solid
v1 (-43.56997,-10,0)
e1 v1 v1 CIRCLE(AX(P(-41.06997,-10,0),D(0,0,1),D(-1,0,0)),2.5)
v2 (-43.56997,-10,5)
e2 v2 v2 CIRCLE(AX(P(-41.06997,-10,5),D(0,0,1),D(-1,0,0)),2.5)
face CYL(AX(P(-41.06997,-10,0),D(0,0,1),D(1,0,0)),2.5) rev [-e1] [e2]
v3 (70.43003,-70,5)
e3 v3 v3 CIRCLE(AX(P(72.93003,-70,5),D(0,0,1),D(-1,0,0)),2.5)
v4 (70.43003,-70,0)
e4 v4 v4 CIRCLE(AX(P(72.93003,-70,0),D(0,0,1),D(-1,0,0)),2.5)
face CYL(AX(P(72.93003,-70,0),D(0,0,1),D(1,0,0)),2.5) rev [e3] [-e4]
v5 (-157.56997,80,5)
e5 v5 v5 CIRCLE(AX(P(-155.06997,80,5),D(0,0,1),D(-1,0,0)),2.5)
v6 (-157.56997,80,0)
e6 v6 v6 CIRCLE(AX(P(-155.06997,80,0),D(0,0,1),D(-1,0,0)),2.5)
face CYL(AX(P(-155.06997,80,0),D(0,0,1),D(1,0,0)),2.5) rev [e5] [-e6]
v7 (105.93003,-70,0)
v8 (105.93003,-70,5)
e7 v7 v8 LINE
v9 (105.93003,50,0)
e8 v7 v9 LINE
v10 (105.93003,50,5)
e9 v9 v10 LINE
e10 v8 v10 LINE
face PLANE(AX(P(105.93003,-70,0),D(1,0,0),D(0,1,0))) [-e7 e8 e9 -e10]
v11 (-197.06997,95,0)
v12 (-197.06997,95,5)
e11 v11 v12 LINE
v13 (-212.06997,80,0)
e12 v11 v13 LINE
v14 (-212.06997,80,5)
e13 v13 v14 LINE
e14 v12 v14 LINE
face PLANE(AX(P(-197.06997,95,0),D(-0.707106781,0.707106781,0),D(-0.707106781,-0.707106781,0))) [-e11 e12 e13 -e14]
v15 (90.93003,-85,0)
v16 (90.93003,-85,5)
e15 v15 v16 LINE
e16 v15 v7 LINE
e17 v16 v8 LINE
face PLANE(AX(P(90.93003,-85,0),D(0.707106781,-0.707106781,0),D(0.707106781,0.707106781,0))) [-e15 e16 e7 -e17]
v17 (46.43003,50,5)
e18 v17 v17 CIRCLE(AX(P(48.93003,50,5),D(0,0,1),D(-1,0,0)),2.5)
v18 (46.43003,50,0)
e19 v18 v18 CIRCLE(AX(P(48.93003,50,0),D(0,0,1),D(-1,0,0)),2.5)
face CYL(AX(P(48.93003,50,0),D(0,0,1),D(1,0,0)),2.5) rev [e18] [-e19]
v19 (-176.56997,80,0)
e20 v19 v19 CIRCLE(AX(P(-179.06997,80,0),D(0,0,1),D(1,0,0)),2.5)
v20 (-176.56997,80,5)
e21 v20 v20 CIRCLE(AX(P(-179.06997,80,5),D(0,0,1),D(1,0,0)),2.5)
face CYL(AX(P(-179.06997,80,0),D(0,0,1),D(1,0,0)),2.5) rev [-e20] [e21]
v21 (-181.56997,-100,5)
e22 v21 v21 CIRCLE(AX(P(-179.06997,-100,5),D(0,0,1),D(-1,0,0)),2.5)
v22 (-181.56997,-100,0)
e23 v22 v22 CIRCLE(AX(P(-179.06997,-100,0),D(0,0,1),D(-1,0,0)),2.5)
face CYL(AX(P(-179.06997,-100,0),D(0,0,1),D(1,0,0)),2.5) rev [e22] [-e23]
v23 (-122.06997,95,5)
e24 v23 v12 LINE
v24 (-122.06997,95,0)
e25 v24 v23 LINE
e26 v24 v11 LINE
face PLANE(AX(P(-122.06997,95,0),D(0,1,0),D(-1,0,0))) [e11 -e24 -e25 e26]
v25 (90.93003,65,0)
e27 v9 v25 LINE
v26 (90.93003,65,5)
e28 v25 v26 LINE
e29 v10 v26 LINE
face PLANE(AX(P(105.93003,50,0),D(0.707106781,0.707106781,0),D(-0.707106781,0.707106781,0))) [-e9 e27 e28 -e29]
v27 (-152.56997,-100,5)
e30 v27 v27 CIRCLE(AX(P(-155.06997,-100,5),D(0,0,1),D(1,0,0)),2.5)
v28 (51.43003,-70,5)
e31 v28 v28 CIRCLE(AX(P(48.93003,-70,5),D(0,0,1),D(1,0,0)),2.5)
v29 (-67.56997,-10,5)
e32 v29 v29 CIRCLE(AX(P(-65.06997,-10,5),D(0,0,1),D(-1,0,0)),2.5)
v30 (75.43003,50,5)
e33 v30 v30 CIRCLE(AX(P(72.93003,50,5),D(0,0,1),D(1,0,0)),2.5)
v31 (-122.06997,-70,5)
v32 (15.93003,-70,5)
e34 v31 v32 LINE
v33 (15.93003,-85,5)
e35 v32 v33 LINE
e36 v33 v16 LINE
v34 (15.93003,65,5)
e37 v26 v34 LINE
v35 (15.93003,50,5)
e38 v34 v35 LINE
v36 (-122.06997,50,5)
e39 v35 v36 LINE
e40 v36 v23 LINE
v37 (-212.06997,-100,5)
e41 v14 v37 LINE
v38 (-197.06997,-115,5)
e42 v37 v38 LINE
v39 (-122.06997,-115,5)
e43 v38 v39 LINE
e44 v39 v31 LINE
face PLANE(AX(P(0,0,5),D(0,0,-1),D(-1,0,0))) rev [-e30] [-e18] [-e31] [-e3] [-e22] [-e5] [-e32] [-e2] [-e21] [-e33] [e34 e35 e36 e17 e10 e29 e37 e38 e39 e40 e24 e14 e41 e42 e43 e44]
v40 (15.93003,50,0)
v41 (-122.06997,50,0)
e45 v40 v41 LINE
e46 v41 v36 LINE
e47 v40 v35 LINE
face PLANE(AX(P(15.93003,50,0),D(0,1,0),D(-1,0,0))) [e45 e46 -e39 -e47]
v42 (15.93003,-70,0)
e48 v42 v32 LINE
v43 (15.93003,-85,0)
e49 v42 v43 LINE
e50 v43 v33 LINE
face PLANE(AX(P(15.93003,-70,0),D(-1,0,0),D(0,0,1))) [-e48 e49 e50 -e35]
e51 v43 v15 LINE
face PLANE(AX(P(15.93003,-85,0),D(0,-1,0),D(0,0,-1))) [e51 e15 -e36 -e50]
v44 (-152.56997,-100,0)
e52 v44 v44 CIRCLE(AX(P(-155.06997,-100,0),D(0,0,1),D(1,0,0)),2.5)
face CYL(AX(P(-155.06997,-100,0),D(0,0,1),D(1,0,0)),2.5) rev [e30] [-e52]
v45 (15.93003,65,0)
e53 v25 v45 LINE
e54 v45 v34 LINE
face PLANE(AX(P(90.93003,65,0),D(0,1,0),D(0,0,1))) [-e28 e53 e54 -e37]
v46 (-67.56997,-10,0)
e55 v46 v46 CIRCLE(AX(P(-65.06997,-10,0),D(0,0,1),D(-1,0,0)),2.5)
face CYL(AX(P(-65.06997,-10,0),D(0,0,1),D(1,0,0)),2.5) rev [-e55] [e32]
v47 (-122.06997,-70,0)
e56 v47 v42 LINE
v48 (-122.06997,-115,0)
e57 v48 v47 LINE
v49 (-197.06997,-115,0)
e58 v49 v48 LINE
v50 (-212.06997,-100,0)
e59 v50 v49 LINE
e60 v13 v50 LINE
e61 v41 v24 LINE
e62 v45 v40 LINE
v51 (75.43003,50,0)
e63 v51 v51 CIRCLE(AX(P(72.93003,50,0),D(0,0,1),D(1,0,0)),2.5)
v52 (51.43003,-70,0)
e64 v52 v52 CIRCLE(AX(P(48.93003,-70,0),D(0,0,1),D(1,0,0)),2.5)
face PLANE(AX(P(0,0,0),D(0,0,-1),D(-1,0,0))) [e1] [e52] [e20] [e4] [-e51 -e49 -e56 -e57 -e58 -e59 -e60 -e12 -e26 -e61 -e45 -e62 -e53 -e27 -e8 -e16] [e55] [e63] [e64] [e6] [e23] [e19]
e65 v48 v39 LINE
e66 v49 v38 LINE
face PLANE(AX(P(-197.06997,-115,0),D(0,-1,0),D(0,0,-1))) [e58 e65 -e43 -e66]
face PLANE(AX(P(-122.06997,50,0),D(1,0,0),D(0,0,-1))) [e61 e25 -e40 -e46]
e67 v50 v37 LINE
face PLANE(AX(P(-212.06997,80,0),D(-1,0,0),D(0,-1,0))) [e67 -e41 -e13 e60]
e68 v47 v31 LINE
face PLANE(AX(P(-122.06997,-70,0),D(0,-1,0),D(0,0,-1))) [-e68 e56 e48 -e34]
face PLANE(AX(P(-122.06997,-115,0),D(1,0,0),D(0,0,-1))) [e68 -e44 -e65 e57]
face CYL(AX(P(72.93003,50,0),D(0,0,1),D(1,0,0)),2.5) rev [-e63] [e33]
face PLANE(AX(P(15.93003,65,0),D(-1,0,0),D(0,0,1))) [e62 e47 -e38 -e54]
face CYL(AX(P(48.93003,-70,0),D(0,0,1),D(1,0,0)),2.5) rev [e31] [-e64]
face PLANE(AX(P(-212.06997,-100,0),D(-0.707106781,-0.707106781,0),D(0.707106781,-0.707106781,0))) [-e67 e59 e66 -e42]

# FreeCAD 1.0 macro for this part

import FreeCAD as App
import Part
import Sketcher

V = App.Vector
Q = App.Units.Quantity


def add_polygon(sketch, points):
    """Adds a closed chain of lines whose ends are joined by coincident constraints."""
    first, n = sketch.GeometryCount, len(points)
    for a, b in zip(points, points[1:] + points[:1]):
        sketch.addGeometry(Part.LineSegment(App.Vector(*a, 0), App.Vector(*b, 0)), False)
    for i in range(n):
        sketch.addConstraint(Sketcher.Constraint("Coincident", first + i, 2, first + (i + 1) % n, 1))

doc = App.newDocument("Part")
body = doc.addObject("PartDesign::Body", "Body")

# Sketch on XY plane
sketch1 = body.newObject("Sketcher::SketchObject", "Sketch")
sketch1.AttachmentSupport = (doc.getObject("XY_Plane"), [""])
sketch1.MapMode = "FlatFace"
sketch1.AttachmentOffset = App.Placement(V(0, 0, 5), App.Rotation())
add_polygon(sketch1, [(15.9, -70), (15.9, -85), (90.9, -85), (105.9, -70), (105.9, 50), (90.9, 65), (15.9, 65), (15.9, 50), (-122.1, 50), (-122.1, 95), (-197.1, 95), (-212.1, 80), (-212.1, -100), (-197.1, -115), (-122.1, -115), (-122.1, -70)])  # lines 0-15
sketch1.addGeometry(Part.Circle(V(-179.1, -100, 0), V(0, 0, 1), 2.5), False)  # 16
sketch1.addGeometry(Part.Circle(V(-155.1, -100, 0), V(0, 0, 1), 2.5), False)  # 17
sketch1.addGeometry(Part.Circle(V(48.9, -70, 0), V(0, 0, 1), 2.5), False)  # 18
sketch1.addGeometry(Part.Circle(V(72.9, -70, 0), V(0, 0, 1), 2.5), False)  # 19
sketch1.addGeometry(Part.Circle(V(-41.1, -10, 0), V(0, 0, 1), 2.5), False)  # 20
sketch1.addGeometry(Part.Circle(V(-65.1, -10, 0), V(0, 0, 1), 2.5), False)  # 21
sketch1.addGeometry(Part.Circle(V(-179.1, 80, 0), V(0, 0, 1), 2.5), False)  # 22
sketch1.addGeometry(Part.Circle(V(-155.1, 80, 0), V(0, 0, 1), 2.5), False)  # 23
sketch1.addGeometry(Part.Circle(V(48.9, 50, 0), V(0, 0, 1), 2.5), False)  # 24
sketch1.addGeometry(Part.Circle(V(72.9, 50, 0), V(0, 0, 1), 2.5), False)  # 25
sketch1.addConstraint([
    Sketcher.Constraint("Vertical", 0),
    Sketcher.Constraint("Horizontal", 1),
    Sketcher.Constraint("Vertical", 3),
    Sketcher.Constraint("Horizontal", 5),
    Sketcher.Constraint("Vertical", 6),
    Sketcher.Constraint("Horizontal", 7),
    Sketcher.Constraint("Vertical", 8),
    Sketcher.Constraint("Horizontal", 9),
    Sketcher.Constraint("Vertical", 11),
    Sketcher.Constraint("Horizontal", 13),
    Sketcher.Constraint("Vertical", 14),
    Sketcher.Constraint("Horizontal", 15),
    Sketcher.Constraint("Equal", 16, 17),
    Sketcher.Constraint("Equal", 17, 18),
    Sketcher.Constraint("Equal", 18, 19),
    Sketcher.Constraint("Equal", 19, 20),
    Sketcher.Constraint("Equal", 20, 21),
    Sketcher.Constraint("Equal", 21, 22),
    Sketcher.Constraint("Equal", 22, 23),
    Sketcher.Constraint("Equal", 23, 24),
    Sketcher.Constraint("Equal", 24, 25),
    Sketcher.Constraint("Perpendicular", 2, 4),
    Sketcher.Constraint("Perpendicular", 4, 10),
    Sketcher.Constraint("Perpendicular", 10, 12),
    Sketcher.Constraint("Horizontal", 16, 3, 17, 3),
    Sketcher.Constraint("Horizontal", 18, 3, 19, 3),
    Sketcher.Constraint("Horizontal", 20, 3, 21, 3),
    Sketcher.Constraint("Horizontal", 22, 3, 23, 3),
    Sketcher.Constraint("Horizontal", 24, 3, 25, 3),
    Sketcher.Constraint("Horizontal", 19, 3, 2, 2),
    Sketcher.Constraint("Horizontal", 25, 3, 3, 2),
    Sketcher.Constraint("Horizontal", 3, 2, 6, 2),
    Sketcher.Constraint("Horizontal", 23, 3, 10, 2),
    Sketcher.Constraint("Horizontal", 17, 3, 11, 2),
    Sketcher.Constraint("Horizontal", 2, 2, 14, 2),
    Sketcher.Constraint("Vertical", 16, 3, 22, 3),
    Sketcher.Constraint("Vertical", 17, 3, 23, 3),
    Sketcher.Constraint("Vertical", 18, 3, 24, 3),
    Sketcher.Constraint("Vertical", 19, 3, 25, 3),
    Sketcher.Constraint("Vertical", 1, 2, 4, 2),
    Sketcher.Constraint("Vertical", 0, 2, 5, 2),
    Sketcher.Constraint("Vertical", 9, 2, 12, 2),
    Sketcher.Constraint("Vertical", 8, 2, 13, 2),
    Sketcher.Constraint("Equal", 5, 9),
    Sketcher.Constraint("Equal", 0, 6),
    Sketcher.Constraint("Equal", 8, 14),
    Sketcher.Constraint("Equal", 4, 10),
    Sketcher.Constraint("Diameter", 16, Q("5 mm")),
    Sketcher.Constraint("DistanceX", 1, 1, 1, 2, Q("75 mm")),
    Sketcher.Constraint("DistanceX", 7, 2, 7, 1, Q("138 mm")),
    Sketcher.Constraint("DistanceY", 0, 2, 0, 1, Q("15 mm")),
    Sketcher.Constraint("DistanceY", 3, 1, 3, 2, Q("120 mm")),
    Sketcher.Constraint("DistanceY", 8, 1, 8, 2, Q("45 mm")),
    Sketcher.Constraint("DistanceY", 16, 3, -1, 1, Q("100 mm")),
    Sketcher.Constraint("DistanceY", 20, 3, -1, 1, Q("10 mm")),
    Sketcher.Constraint("DistanceX", 16, 3, 17, 3, Q("24 mm")),
    Sketcher.Constraint("DistanceX", 17, 3, 18, 3, Q("204 mm")),
    Sketcher.Constraint("DistanceX", 18, 3, 19, 3, Q("24 mm")),
    Sketcher.Constraint("DistanceX", 20, 3, 18, 3, Q("90 mm")),
    Sketcher.Constraint("DistanceX", 21, 3, 20, 3, Q("24 mm")),
    Sketcher.Constraint("DistanceX", 0, 2, 18, 3, Q("33 mm")),
    Sketcher.Constraint("DistanceX", 16, 3, -1, 1, Q("179.06997 mm")),
])
pad1 = body.newObject("PartDesign::Pad", "Pad")
pad1.Profile = sketch1
pad1.Length = 5
pad1.Reversed = True

doc.recompute()
